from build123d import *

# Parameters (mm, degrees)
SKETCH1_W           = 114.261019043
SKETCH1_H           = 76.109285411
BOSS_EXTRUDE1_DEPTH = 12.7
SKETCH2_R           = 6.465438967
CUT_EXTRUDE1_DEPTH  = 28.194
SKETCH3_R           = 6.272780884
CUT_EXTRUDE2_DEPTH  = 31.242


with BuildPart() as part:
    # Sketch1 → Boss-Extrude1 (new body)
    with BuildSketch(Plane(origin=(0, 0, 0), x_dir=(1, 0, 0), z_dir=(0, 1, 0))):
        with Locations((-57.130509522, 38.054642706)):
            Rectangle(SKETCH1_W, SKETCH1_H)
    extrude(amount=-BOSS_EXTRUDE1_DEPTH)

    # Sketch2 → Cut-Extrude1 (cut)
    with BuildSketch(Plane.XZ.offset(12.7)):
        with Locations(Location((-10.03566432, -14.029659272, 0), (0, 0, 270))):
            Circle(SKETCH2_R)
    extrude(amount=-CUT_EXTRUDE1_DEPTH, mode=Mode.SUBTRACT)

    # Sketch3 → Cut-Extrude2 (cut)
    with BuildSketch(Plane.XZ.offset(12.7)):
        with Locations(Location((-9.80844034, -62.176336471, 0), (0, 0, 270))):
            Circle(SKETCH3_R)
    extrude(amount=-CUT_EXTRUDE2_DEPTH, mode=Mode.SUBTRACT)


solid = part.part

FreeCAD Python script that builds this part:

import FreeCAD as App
import Part
import Sketcher

V = App.Vector
Q = App.Units.Quantity

doc = App.newDocument("Part")
body = doc.addObject("PartDesign::Body", "Body")

# Sketch on XZ plane
sketch1 = body.newObject("Sketcher::SketchObject", "Sketch")
sketch1.AttachmentSupport = (doc.getObject("XZ_Plane"), [""])
sketch1.MapMode = "FlatFace"
sketch1.addGeometry([
    Part.LineSegment(V(-114.261019, -76.109285, 0), V(-114.261019, 0, 0)),
    Part.LineSegment(V(-114.261019, 0, 0), V(0, 0, 0)),
    Part.LineSegment(V(0, 0, 0), V(0, -76.109285, 0)),
    Part.LineSegment(V(0, -76.109285, 0), V(-114.261019, -76.109285, 0)),
], False)
sketch1.addConstraint([
    Sketcher.Constraint("Coincident", 0, 2, 1, 1),
    Sketcher.Constraint("Coincident", 1, 2, 2, 1),
    Sketcher.Constraint("Coincident", 2, 2, 3, 1),
    Sketcher.Constraint("Coincident", 3, 2, 0, 1),
    Sketcher.Constraint("Vertical", 0),
    Sketcher.Constraint("Horizontal", 1),
    Sketcher.Constraint("Vertical", 2),
    Sketcher.Constraint("Horizontal", 3),
    Sketcher.Constraint("Coincident", 1, 2, -1, 1),
    Sketcher.Constraint("DistanceX", 1, 1, 1, 2, 114.261019),
    Sketcher.Constraint("DistanceY", 0, 1, 0, 2, 76.109285),
])
pad1 = body.newObject("PartDesign::Pad", "Pad")
pad1.Profile = sketch1
pad1.Length = Q("0.5 in")

# Sketch on XZ plane
sketch2 = body.newObject("Sketcher::SketchObject", "Sketch001")
sketch2.AttachmentSupport = (doc.getObject("XZ_Plane"), [""])
sketch2.MapMode = "FlatFace"
sketch2.AttachmentOffset = App.Placement(V(0, 0, 0.5 * 25.4), App.Rotation())
sketch2.addGeometry(Part.Circle(V(-10.035664, -14.029659, 0), V(0, 0, 1), 6.465439), False)
sketch2.addConstraint([
    Sketcher.Constraint("Diameter", 0, 12.930878),
    Sketcher.Constraint("DistanceY", 0, 3, -1, 1, 14.029659),
    Sketcher.Constraint("DistanceX", 0, 3, -1, 1, 10.035664),
])
pocket1 = body.newObject("PartDesign::Pocket", "Pocket")
pocket1.Profile = sketch2
pocket1.Length = Q("1.11 in")

# Sketch on XZ plane
sketch3 = body.newObject("Sketcher::SketchObject", "Sketch002")
sketch3.AttachmentSupport = (doc.getObject("XZ_Plane"), [""])
sketch3.MapMode = "FlatFace"
sketch3.AttachmentOffset = App.Placement(V(0, 0, 0.5 * 25.4), App.Rotation())
sketch3.addGeometry(Part.Circle(V(-9.80844, -62.176336, 0), V(0, 0, 1), 6.272781), False)
sketch3.addConstraint([
    Sketcher.Constraint("Diameter", 0, 12.545562),
    Sketcher.Constraint("DistanceX", 0, 3, -1, 1, 9.80844),
    Sketcher.Constraint("DistanceY", 0, 3, -1, 1, 62.176336),
])
pocket2 = body.newObject("PartDesign::Pocket", "Pocket001")
pocket2.Profile = sketch3
pocket2.Length = Q("1.23 in")

doc.recompute()
